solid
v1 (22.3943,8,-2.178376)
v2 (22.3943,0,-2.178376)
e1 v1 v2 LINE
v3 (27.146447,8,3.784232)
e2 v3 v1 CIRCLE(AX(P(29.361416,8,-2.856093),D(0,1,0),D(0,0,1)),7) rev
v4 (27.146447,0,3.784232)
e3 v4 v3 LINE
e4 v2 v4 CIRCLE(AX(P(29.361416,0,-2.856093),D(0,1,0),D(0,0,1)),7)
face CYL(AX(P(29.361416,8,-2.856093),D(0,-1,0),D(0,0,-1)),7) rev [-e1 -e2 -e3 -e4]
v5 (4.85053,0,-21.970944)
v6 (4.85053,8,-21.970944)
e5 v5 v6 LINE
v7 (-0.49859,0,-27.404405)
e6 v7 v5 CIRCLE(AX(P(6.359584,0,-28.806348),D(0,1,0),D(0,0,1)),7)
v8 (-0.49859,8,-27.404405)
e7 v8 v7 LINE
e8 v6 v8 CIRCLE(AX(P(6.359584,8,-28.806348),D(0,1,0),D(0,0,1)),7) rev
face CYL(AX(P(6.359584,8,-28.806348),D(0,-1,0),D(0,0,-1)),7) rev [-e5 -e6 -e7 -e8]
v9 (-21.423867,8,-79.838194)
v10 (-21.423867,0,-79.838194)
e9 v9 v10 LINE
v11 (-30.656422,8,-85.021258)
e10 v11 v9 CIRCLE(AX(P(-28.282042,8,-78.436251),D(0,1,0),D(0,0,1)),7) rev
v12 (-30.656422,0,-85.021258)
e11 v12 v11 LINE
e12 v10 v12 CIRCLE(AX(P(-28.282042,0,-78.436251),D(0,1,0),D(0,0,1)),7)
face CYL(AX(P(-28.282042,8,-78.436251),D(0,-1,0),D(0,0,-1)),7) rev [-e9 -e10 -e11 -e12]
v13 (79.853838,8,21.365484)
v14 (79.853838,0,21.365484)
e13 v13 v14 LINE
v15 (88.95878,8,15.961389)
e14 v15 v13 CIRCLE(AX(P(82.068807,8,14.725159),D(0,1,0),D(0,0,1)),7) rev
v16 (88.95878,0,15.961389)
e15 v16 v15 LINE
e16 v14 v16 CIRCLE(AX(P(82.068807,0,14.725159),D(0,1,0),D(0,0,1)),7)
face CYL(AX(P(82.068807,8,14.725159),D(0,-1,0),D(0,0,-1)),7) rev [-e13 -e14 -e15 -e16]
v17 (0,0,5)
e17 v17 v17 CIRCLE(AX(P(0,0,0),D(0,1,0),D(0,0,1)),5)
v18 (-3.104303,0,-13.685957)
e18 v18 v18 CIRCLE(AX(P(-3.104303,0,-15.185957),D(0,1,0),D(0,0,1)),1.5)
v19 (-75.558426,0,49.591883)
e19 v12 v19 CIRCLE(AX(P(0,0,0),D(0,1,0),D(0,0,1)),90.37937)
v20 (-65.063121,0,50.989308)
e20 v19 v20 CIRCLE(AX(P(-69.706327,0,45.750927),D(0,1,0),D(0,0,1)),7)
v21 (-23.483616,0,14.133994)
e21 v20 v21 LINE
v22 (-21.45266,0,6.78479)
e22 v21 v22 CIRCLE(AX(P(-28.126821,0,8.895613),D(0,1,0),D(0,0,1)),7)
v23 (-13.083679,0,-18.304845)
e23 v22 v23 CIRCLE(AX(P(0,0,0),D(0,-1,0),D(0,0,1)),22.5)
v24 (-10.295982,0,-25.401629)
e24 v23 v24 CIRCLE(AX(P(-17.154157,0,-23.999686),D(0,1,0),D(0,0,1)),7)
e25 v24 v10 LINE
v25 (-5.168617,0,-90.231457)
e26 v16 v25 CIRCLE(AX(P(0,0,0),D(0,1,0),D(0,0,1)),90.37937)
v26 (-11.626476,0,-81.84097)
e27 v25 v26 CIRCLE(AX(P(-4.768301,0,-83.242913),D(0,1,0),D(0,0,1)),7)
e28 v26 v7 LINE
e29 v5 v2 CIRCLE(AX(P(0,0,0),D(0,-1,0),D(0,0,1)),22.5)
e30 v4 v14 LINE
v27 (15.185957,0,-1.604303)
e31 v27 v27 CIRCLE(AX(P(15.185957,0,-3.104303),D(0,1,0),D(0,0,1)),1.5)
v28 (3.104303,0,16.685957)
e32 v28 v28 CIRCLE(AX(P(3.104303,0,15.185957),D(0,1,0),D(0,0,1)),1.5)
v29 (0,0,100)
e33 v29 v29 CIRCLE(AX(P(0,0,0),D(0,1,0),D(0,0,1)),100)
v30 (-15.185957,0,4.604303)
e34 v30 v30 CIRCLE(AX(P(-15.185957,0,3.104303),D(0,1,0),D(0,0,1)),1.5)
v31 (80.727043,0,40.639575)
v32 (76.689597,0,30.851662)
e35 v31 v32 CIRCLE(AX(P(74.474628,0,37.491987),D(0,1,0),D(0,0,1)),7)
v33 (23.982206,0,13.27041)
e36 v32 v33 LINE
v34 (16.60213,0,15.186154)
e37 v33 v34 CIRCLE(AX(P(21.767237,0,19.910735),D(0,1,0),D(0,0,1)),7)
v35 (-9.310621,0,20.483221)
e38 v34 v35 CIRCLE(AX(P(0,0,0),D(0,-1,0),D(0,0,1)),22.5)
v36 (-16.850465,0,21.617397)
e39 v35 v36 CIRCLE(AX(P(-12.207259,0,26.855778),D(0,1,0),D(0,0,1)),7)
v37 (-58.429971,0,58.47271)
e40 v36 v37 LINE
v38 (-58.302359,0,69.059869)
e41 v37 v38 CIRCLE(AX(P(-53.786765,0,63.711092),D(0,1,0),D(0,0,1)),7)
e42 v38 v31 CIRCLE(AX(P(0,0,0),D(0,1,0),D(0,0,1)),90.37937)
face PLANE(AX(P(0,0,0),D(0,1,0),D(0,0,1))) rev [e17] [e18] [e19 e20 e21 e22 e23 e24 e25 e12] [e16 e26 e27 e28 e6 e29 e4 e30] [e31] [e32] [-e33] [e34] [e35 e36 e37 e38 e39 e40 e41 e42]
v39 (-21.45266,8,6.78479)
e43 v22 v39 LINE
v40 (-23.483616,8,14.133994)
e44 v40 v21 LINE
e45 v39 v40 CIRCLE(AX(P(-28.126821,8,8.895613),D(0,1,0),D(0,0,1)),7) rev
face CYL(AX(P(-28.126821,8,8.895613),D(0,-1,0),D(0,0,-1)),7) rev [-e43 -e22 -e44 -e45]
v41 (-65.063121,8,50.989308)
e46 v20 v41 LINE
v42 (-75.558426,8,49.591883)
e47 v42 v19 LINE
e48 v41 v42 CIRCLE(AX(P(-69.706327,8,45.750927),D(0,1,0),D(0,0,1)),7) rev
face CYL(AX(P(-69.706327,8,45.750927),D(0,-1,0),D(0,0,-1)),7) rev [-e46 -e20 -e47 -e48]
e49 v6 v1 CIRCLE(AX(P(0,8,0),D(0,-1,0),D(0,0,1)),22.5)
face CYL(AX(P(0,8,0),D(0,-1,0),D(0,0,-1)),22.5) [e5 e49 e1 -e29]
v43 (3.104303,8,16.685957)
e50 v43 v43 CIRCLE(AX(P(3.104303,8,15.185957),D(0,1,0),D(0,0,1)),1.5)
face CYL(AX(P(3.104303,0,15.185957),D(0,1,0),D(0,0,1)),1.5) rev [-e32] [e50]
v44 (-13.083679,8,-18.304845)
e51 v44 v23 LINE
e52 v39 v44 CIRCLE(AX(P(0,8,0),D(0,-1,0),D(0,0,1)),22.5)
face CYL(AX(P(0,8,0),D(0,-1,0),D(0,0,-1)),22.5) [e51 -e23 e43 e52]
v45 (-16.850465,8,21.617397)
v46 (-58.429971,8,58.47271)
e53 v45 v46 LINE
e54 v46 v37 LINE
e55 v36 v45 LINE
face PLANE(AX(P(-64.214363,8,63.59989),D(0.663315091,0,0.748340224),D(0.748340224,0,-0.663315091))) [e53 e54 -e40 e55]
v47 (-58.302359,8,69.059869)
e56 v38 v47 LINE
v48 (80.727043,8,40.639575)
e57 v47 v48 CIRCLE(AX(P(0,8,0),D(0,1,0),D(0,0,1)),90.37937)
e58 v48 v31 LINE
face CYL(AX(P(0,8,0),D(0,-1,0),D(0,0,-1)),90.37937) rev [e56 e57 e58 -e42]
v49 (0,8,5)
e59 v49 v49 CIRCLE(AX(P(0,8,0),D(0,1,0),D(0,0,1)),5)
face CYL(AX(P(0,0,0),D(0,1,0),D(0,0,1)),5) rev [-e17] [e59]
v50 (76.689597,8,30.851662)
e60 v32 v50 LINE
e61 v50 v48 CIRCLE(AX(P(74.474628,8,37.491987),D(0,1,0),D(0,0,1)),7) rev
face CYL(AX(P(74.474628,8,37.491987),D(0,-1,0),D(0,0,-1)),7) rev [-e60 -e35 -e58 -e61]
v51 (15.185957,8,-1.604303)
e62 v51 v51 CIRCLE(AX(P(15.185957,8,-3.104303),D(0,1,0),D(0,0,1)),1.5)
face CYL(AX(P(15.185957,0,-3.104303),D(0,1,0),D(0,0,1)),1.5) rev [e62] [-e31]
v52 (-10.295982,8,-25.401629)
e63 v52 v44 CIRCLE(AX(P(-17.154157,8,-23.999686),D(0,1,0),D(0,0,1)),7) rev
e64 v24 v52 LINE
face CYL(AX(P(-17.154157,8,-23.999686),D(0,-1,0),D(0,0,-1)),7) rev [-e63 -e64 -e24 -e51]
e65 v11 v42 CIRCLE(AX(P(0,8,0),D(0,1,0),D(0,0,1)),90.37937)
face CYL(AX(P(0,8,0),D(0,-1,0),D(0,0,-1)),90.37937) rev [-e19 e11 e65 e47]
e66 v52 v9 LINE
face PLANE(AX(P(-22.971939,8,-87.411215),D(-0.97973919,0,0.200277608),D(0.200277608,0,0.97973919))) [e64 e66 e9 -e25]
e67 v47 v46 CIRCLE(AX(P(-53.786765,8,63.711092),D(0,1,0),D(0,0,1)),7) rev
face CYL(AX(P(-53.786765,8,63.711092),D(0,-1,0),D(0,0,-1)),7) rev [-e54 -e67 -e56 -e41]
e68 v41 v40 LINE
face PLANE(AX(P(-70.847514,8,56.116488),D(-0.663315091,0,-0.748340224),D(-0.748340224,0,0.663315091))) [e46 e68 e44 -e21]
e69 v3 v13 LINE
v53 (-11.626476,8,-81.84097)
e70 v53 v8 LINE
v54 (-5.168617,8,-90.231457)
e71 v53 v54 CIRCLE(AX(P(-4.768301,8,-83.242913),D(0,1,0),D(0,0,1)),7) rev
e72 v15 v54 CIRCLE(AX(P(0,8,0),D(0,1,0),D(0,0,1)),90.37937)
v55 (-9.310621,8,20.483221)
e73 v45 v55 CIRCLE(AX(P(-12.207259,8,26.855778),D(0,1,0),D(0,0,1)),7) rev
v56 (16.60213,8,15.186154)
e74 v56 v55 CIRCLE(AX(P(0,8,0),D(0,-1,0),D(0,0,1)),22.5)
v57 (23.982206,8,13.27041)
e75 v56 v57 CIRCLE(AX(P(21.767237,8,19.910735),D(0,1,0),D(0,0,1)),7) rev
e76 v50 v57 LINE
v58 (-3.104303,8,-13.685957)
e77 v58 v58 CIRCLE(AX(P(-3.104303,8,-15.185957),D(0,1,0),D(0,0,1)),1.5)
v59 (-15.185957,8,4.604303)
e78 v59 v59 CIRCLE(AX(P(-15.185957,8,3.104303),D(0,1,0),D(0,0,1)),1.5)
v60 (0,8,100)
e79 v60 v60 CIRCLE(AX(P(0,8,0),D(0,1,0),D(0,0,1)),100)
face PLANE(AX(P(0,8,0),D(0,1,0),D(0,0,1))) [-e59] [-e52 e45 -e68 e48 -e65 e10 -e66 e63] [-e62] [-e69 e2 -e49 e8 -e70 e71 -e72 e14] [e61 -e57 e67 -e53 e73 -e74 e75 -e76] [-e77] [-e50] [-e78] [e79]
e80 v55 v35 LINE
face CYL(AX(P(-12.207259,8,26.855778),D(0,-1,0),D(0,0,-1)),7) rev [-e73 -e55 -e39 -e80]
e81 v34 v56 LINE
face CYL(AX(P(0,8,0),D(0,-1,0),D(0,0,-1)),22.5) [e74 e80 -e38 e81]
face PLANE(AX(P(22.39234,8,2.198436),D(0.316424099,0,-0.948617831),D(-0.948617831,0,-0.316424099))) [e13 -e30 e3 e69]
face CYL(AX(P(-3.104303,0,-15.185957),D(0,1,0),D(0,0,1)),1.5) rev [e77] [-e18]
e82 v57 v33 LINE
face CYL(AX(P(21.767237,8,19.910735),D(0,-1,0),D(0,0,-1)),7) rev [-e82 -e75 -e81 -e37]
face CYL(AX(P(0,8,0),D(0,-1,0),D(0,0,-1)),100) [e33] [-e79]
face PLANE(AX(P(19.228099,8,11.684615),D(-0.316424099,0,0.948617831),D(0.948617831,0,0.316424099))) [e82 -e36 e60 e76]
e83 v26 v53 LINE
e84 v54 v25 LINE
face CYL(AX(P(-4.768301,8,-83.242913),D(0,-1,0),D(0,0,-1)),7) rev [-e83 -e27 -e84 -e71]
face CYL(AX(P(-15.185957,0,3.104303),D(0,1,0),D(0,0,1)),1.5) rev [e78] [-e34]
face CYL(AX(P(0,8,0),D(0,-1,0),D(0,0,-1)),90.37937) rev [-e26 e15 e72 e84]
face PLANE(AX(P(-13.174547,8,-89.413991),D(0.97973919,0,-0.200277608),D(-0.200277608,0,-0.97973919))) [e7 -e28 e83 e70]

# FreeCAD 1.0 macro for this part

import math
import FreeCAD as App
import Part
import Sketcher
Q = App.Units.Quantity


def edges_at(feature, points):
    """Names of the edges that pass closest to the given points."""
    edges = feature.Shape.Edges
    near = lambda p: min(range(len(edges)), key=lambda i: edges[i].distToShape(Part.Vertex(*p))[0])
    return sorted({f"Edge{near(p) + 1}" for p in points})

doc = App.newDocument("Part")
body = doc.addObject("PartDesign::Body", "Body")

sketch1 = doc.addObject("Sketcher::SketchObject", "Sketch")
body.addObject(sketch1)
sketch1.AttachmentSupport = (doc.XZ_Plane, [""])
sketch1.MapMode = "FlatFace"
sketch1.addGeometry([
    Part.Circle(App.Vector(0, 0, 0), App.Vector(0, 0, 1), 100),
    Part.ArcOfCircle(Part.Circle(App.Vector(0, 0, 0), App.Vector(0, 0, 1), 90), math.radians(142), math.radians(255)),
    Part.LineSegment(App.Vector(-23, -87, 0), App.Vector(-9, -20, 0)),
    Part.ArcOfCircle(Part.Circle(App.Vector(0, 0, 0), App.Vector(0, 0, 1), 23), math.radians(151), math.radians(246)),
    Part.LineSegment(App.Vector(-20, 11, 0), App.Vector(-71, 56, 0)),
    Part.LineSegment(App.Vector(1, -22, 0), App.Vector(-13, -89, 0)),
    Part.ArcOfCircle(Part.Circle(App.Vector(0, 0, 0), App.Vector(0, 0, 1), 90), math.radians(-98), math.radians(15)),
    Part.LineSegment(App.Vector(87, 24, 0), App.Vector(22, 2, 0)),
    Part.ArcOfCircle(Part.Circle(App.Vector(0, 0, 0), App.Vector(0, 0, 1), 22), math.radians(-89), math.radians(6)),
    Part.ArcOfCircle(Part.Circle(App.Vector(0, 0, 0), App.Vector(0, 0, 1), 22), math.radians(31), math.radians(126)),
    Part.LineSegment(App.Vector(19, 12, 0), App.Vector(84, 33, 0)),
    Part.ArcOfCircle(Part.Circle(App.Vector(0, 0, 0), App.Vector(0, 0, 1), 90), math.radians(22), math.radians(135)),
    Part.LineSegment(App.Vector(-64, 64, 0), App.Vector(-13, 18, 0)),
], False)
sketch1.addConstraint([
    Sketcher.Constraint("Coincident", 1, 2, 2, 1),
    Sketcher.Constraint("Coincident", 2, 2, 3, 2),
    Sketcher.Constraint("Coincident", 3, 1, 4, 1),
    Sketcher.Constraint("Coincident", 4, 2, 1, 1),
    Sketcher.Constraint("Coincident", 5, 2, 6, 1),
    Sketcher.Constraint("Coincident", 6, 2, 7, 1),
    Sketcher.Constraint("Coincident", 7, 2, 8, 2),
    Sketcher.Constraint("Coincident", 8, 1, 5, 1),
    Sketcher.Constraint("Coincident", 9, 1, 10, 1),
    Sketcher.Constraint("Coincident", 10, 2, 11, 1),
    Sketcher.Constraint("Coincident", 11, 2, 12, 1),
    Sketcher.Constraint("Coincident", 12, 2, 9, 2),
    Sketcher.Constraint("Coincident", 0, 3, -1, 1),
    Sketcher.Constraint("Coincident", 1, 3, -1, 1),
    Sketcher.Constraint("Coincident", 3, 3, -1, 1),
    Sketcher.Constraint("Coincident", 6, 3, -1, 1),
    Sketcher.Constraint("Coincident", 8, 3, -1, 1),
    Sketcher.Constraint("Coincident", 9, 3, -1, 1),
    Sketcher.Constraint("Coincident", 11, 3, -1, 1),
    Sketcher.Constraint("Equal", 1, 6),
    Sketcher.Constraint("Equal", 3, 8),
    Sketcher.Constraint("Equal", 8, 9),
    Sketcher.Constraint("Equal", 6, 11),
    Sketcher.Constraint("Parallel", 2, 5),
    Sketcher.Constraint("Parallel", 7, 10),
    Sketcher.Constraint("Parallel", 4, 12),
    Sketcher.Constraint("Equal", 2, 4),
    Sketcher.Constraint("Equal", 4, 5),
    Sketcher.Constraint("Equal", 5, 7),
    Sketcher.Constraint("Equal", 7, 10),
    Sketcher.Constraint("Equal", 10, 12),
    Sketcher.Constraint("Diameter", 0, Q("200 mm")),
    Sketcher.Constraint("Radius", 3, Q("22.5 mm")),
    Sketcher.Constraint("Radius", 1, Q("90.37937 mm")),
    Sketcher.Constraint("DistanceX", -1, 1, 9, 1, Q("19.228099 mm")),
    Sketcher.Constraint("DistanceX", 1, 2, -1, 1, Q("22.971939 mm")),
    Sketcher.Constraint("DistanceX", 2, 2, -1, 1, Q("9.292268 mm")),
    Sketcher.Constraint("DistanceY", -1, 1, 4, 2, Q("56.116488 mm")),
])
pad1 = doc.addObject("PartDesign::Pad", "Pad")
body.addObject(pad1)
pad1.Profile = sketch1
pad1.Length = 8
pad1.Reversed = True

sketch2 = doc.addObject("Sketcher::SketchObject", "Sketch001")
body.addObject(sketch2)
sketch2.AttachmentSupport = (doc.XZ_Plane, [""])
sketch2.MapMode = "FlatFace"
sketch2.AttachmentOffset = App.Placement(App.Vector(0, 0, -8), App.Rotation())
sketch2.addGeometry([
    Part.Circle(App.Vector(0, 0, 0), App.Vector(0, 0, 1), 5),
    Part.Circle(App.Vector(-3.1, -15.2, 0), App.Vector(0, 0, 1), 1.5),
    Part.Circle(App.Vector(15.2, -3.1, 0), App.Vector(0, 0, 1), 1.5),
    Part.Circle(App.Vector(3.1, 15.2, 0), App.Vector(0, 0, 1), 1.5),
    Part.Circle(App.Vector(-15.2, 3.1, 0), App.Vector(0, 0, 1), 1.5),
], False)
sketch2.addConstraint([
    Sketcher.Constraint("Coincident", 0, 3, -1, 1),
    Sketcher.Constraint("Equal", 1, 2),
    Sketcher.Constraint("Equal", 2, 3),
    Sketcher.Constraint("Equal", 3, 4),
    Sketcher.Constraint("Symmetric", 1, 3, 3, 3, -1, 1),
    Sketcher.Constraint("Symmetric", 2, 3, 4, 3, -1, 1),
    Sketcher.Constraint("Diameter", 0, Q("10 mm")),
    Sketcher.Constraint("Diameter", 1, Q("3 mm")),
    Sketcher.Constraint("DistanceX", 1, 3, 2, 3, Q("18.29026 mm")),
    Sketcher.Constraint("DistanceY", 2, 3, 3, 3, Q("18.29026 mm")),
    Sketcher.Constraint("DistanceX", 1, 3, -1, 1, Q("3.104303 mm")),
    Sketcher.Constraint("DistanceY", 1, 3, -1, 1, Q("15.185957 mm")),
])
pocket1 = doc.addObject("PartDesign::Pocket", "Pocket")
body.addObject(pocket1)
pocket1.Profile = sketch2
pocket1.Type = "ThroughAll"
pocket1.Reversed = True
doc.recompute()

fillet = doc.addObject("PartDesign::Fillet", "Fillet")
body.addObject(fillet)
fillet.Base = (pocket1, edges_at(pocket1, [
    (87.186, 4, 23.811),
    (-13.175, 4, -89.414),
    (-64.214, 4, 63.6),
    (84.022, 4, 33.298),
    (-22.972, 4, -87.411),
    (-70.848, 4, 56.116),
]))
fillet.Radius = 7
doc.recompute()

fillet2 = doc.addObject("PartDesign::Fillet", "Fillet001")
body.addObject(fillet2)
fillet2.Base = (fillet, edges_at(fillet, [
    (0.505, 4, -22.494),
    (22.392, 4, 2.198),
    (19.228, 4, 11.685),
    (-13.1, 4, 18.293),
    (-19.733, 4, 10.81),
    (-9.292, 4, -20.492),
]))
fillet2.Radius = 7

doc.recompute()
